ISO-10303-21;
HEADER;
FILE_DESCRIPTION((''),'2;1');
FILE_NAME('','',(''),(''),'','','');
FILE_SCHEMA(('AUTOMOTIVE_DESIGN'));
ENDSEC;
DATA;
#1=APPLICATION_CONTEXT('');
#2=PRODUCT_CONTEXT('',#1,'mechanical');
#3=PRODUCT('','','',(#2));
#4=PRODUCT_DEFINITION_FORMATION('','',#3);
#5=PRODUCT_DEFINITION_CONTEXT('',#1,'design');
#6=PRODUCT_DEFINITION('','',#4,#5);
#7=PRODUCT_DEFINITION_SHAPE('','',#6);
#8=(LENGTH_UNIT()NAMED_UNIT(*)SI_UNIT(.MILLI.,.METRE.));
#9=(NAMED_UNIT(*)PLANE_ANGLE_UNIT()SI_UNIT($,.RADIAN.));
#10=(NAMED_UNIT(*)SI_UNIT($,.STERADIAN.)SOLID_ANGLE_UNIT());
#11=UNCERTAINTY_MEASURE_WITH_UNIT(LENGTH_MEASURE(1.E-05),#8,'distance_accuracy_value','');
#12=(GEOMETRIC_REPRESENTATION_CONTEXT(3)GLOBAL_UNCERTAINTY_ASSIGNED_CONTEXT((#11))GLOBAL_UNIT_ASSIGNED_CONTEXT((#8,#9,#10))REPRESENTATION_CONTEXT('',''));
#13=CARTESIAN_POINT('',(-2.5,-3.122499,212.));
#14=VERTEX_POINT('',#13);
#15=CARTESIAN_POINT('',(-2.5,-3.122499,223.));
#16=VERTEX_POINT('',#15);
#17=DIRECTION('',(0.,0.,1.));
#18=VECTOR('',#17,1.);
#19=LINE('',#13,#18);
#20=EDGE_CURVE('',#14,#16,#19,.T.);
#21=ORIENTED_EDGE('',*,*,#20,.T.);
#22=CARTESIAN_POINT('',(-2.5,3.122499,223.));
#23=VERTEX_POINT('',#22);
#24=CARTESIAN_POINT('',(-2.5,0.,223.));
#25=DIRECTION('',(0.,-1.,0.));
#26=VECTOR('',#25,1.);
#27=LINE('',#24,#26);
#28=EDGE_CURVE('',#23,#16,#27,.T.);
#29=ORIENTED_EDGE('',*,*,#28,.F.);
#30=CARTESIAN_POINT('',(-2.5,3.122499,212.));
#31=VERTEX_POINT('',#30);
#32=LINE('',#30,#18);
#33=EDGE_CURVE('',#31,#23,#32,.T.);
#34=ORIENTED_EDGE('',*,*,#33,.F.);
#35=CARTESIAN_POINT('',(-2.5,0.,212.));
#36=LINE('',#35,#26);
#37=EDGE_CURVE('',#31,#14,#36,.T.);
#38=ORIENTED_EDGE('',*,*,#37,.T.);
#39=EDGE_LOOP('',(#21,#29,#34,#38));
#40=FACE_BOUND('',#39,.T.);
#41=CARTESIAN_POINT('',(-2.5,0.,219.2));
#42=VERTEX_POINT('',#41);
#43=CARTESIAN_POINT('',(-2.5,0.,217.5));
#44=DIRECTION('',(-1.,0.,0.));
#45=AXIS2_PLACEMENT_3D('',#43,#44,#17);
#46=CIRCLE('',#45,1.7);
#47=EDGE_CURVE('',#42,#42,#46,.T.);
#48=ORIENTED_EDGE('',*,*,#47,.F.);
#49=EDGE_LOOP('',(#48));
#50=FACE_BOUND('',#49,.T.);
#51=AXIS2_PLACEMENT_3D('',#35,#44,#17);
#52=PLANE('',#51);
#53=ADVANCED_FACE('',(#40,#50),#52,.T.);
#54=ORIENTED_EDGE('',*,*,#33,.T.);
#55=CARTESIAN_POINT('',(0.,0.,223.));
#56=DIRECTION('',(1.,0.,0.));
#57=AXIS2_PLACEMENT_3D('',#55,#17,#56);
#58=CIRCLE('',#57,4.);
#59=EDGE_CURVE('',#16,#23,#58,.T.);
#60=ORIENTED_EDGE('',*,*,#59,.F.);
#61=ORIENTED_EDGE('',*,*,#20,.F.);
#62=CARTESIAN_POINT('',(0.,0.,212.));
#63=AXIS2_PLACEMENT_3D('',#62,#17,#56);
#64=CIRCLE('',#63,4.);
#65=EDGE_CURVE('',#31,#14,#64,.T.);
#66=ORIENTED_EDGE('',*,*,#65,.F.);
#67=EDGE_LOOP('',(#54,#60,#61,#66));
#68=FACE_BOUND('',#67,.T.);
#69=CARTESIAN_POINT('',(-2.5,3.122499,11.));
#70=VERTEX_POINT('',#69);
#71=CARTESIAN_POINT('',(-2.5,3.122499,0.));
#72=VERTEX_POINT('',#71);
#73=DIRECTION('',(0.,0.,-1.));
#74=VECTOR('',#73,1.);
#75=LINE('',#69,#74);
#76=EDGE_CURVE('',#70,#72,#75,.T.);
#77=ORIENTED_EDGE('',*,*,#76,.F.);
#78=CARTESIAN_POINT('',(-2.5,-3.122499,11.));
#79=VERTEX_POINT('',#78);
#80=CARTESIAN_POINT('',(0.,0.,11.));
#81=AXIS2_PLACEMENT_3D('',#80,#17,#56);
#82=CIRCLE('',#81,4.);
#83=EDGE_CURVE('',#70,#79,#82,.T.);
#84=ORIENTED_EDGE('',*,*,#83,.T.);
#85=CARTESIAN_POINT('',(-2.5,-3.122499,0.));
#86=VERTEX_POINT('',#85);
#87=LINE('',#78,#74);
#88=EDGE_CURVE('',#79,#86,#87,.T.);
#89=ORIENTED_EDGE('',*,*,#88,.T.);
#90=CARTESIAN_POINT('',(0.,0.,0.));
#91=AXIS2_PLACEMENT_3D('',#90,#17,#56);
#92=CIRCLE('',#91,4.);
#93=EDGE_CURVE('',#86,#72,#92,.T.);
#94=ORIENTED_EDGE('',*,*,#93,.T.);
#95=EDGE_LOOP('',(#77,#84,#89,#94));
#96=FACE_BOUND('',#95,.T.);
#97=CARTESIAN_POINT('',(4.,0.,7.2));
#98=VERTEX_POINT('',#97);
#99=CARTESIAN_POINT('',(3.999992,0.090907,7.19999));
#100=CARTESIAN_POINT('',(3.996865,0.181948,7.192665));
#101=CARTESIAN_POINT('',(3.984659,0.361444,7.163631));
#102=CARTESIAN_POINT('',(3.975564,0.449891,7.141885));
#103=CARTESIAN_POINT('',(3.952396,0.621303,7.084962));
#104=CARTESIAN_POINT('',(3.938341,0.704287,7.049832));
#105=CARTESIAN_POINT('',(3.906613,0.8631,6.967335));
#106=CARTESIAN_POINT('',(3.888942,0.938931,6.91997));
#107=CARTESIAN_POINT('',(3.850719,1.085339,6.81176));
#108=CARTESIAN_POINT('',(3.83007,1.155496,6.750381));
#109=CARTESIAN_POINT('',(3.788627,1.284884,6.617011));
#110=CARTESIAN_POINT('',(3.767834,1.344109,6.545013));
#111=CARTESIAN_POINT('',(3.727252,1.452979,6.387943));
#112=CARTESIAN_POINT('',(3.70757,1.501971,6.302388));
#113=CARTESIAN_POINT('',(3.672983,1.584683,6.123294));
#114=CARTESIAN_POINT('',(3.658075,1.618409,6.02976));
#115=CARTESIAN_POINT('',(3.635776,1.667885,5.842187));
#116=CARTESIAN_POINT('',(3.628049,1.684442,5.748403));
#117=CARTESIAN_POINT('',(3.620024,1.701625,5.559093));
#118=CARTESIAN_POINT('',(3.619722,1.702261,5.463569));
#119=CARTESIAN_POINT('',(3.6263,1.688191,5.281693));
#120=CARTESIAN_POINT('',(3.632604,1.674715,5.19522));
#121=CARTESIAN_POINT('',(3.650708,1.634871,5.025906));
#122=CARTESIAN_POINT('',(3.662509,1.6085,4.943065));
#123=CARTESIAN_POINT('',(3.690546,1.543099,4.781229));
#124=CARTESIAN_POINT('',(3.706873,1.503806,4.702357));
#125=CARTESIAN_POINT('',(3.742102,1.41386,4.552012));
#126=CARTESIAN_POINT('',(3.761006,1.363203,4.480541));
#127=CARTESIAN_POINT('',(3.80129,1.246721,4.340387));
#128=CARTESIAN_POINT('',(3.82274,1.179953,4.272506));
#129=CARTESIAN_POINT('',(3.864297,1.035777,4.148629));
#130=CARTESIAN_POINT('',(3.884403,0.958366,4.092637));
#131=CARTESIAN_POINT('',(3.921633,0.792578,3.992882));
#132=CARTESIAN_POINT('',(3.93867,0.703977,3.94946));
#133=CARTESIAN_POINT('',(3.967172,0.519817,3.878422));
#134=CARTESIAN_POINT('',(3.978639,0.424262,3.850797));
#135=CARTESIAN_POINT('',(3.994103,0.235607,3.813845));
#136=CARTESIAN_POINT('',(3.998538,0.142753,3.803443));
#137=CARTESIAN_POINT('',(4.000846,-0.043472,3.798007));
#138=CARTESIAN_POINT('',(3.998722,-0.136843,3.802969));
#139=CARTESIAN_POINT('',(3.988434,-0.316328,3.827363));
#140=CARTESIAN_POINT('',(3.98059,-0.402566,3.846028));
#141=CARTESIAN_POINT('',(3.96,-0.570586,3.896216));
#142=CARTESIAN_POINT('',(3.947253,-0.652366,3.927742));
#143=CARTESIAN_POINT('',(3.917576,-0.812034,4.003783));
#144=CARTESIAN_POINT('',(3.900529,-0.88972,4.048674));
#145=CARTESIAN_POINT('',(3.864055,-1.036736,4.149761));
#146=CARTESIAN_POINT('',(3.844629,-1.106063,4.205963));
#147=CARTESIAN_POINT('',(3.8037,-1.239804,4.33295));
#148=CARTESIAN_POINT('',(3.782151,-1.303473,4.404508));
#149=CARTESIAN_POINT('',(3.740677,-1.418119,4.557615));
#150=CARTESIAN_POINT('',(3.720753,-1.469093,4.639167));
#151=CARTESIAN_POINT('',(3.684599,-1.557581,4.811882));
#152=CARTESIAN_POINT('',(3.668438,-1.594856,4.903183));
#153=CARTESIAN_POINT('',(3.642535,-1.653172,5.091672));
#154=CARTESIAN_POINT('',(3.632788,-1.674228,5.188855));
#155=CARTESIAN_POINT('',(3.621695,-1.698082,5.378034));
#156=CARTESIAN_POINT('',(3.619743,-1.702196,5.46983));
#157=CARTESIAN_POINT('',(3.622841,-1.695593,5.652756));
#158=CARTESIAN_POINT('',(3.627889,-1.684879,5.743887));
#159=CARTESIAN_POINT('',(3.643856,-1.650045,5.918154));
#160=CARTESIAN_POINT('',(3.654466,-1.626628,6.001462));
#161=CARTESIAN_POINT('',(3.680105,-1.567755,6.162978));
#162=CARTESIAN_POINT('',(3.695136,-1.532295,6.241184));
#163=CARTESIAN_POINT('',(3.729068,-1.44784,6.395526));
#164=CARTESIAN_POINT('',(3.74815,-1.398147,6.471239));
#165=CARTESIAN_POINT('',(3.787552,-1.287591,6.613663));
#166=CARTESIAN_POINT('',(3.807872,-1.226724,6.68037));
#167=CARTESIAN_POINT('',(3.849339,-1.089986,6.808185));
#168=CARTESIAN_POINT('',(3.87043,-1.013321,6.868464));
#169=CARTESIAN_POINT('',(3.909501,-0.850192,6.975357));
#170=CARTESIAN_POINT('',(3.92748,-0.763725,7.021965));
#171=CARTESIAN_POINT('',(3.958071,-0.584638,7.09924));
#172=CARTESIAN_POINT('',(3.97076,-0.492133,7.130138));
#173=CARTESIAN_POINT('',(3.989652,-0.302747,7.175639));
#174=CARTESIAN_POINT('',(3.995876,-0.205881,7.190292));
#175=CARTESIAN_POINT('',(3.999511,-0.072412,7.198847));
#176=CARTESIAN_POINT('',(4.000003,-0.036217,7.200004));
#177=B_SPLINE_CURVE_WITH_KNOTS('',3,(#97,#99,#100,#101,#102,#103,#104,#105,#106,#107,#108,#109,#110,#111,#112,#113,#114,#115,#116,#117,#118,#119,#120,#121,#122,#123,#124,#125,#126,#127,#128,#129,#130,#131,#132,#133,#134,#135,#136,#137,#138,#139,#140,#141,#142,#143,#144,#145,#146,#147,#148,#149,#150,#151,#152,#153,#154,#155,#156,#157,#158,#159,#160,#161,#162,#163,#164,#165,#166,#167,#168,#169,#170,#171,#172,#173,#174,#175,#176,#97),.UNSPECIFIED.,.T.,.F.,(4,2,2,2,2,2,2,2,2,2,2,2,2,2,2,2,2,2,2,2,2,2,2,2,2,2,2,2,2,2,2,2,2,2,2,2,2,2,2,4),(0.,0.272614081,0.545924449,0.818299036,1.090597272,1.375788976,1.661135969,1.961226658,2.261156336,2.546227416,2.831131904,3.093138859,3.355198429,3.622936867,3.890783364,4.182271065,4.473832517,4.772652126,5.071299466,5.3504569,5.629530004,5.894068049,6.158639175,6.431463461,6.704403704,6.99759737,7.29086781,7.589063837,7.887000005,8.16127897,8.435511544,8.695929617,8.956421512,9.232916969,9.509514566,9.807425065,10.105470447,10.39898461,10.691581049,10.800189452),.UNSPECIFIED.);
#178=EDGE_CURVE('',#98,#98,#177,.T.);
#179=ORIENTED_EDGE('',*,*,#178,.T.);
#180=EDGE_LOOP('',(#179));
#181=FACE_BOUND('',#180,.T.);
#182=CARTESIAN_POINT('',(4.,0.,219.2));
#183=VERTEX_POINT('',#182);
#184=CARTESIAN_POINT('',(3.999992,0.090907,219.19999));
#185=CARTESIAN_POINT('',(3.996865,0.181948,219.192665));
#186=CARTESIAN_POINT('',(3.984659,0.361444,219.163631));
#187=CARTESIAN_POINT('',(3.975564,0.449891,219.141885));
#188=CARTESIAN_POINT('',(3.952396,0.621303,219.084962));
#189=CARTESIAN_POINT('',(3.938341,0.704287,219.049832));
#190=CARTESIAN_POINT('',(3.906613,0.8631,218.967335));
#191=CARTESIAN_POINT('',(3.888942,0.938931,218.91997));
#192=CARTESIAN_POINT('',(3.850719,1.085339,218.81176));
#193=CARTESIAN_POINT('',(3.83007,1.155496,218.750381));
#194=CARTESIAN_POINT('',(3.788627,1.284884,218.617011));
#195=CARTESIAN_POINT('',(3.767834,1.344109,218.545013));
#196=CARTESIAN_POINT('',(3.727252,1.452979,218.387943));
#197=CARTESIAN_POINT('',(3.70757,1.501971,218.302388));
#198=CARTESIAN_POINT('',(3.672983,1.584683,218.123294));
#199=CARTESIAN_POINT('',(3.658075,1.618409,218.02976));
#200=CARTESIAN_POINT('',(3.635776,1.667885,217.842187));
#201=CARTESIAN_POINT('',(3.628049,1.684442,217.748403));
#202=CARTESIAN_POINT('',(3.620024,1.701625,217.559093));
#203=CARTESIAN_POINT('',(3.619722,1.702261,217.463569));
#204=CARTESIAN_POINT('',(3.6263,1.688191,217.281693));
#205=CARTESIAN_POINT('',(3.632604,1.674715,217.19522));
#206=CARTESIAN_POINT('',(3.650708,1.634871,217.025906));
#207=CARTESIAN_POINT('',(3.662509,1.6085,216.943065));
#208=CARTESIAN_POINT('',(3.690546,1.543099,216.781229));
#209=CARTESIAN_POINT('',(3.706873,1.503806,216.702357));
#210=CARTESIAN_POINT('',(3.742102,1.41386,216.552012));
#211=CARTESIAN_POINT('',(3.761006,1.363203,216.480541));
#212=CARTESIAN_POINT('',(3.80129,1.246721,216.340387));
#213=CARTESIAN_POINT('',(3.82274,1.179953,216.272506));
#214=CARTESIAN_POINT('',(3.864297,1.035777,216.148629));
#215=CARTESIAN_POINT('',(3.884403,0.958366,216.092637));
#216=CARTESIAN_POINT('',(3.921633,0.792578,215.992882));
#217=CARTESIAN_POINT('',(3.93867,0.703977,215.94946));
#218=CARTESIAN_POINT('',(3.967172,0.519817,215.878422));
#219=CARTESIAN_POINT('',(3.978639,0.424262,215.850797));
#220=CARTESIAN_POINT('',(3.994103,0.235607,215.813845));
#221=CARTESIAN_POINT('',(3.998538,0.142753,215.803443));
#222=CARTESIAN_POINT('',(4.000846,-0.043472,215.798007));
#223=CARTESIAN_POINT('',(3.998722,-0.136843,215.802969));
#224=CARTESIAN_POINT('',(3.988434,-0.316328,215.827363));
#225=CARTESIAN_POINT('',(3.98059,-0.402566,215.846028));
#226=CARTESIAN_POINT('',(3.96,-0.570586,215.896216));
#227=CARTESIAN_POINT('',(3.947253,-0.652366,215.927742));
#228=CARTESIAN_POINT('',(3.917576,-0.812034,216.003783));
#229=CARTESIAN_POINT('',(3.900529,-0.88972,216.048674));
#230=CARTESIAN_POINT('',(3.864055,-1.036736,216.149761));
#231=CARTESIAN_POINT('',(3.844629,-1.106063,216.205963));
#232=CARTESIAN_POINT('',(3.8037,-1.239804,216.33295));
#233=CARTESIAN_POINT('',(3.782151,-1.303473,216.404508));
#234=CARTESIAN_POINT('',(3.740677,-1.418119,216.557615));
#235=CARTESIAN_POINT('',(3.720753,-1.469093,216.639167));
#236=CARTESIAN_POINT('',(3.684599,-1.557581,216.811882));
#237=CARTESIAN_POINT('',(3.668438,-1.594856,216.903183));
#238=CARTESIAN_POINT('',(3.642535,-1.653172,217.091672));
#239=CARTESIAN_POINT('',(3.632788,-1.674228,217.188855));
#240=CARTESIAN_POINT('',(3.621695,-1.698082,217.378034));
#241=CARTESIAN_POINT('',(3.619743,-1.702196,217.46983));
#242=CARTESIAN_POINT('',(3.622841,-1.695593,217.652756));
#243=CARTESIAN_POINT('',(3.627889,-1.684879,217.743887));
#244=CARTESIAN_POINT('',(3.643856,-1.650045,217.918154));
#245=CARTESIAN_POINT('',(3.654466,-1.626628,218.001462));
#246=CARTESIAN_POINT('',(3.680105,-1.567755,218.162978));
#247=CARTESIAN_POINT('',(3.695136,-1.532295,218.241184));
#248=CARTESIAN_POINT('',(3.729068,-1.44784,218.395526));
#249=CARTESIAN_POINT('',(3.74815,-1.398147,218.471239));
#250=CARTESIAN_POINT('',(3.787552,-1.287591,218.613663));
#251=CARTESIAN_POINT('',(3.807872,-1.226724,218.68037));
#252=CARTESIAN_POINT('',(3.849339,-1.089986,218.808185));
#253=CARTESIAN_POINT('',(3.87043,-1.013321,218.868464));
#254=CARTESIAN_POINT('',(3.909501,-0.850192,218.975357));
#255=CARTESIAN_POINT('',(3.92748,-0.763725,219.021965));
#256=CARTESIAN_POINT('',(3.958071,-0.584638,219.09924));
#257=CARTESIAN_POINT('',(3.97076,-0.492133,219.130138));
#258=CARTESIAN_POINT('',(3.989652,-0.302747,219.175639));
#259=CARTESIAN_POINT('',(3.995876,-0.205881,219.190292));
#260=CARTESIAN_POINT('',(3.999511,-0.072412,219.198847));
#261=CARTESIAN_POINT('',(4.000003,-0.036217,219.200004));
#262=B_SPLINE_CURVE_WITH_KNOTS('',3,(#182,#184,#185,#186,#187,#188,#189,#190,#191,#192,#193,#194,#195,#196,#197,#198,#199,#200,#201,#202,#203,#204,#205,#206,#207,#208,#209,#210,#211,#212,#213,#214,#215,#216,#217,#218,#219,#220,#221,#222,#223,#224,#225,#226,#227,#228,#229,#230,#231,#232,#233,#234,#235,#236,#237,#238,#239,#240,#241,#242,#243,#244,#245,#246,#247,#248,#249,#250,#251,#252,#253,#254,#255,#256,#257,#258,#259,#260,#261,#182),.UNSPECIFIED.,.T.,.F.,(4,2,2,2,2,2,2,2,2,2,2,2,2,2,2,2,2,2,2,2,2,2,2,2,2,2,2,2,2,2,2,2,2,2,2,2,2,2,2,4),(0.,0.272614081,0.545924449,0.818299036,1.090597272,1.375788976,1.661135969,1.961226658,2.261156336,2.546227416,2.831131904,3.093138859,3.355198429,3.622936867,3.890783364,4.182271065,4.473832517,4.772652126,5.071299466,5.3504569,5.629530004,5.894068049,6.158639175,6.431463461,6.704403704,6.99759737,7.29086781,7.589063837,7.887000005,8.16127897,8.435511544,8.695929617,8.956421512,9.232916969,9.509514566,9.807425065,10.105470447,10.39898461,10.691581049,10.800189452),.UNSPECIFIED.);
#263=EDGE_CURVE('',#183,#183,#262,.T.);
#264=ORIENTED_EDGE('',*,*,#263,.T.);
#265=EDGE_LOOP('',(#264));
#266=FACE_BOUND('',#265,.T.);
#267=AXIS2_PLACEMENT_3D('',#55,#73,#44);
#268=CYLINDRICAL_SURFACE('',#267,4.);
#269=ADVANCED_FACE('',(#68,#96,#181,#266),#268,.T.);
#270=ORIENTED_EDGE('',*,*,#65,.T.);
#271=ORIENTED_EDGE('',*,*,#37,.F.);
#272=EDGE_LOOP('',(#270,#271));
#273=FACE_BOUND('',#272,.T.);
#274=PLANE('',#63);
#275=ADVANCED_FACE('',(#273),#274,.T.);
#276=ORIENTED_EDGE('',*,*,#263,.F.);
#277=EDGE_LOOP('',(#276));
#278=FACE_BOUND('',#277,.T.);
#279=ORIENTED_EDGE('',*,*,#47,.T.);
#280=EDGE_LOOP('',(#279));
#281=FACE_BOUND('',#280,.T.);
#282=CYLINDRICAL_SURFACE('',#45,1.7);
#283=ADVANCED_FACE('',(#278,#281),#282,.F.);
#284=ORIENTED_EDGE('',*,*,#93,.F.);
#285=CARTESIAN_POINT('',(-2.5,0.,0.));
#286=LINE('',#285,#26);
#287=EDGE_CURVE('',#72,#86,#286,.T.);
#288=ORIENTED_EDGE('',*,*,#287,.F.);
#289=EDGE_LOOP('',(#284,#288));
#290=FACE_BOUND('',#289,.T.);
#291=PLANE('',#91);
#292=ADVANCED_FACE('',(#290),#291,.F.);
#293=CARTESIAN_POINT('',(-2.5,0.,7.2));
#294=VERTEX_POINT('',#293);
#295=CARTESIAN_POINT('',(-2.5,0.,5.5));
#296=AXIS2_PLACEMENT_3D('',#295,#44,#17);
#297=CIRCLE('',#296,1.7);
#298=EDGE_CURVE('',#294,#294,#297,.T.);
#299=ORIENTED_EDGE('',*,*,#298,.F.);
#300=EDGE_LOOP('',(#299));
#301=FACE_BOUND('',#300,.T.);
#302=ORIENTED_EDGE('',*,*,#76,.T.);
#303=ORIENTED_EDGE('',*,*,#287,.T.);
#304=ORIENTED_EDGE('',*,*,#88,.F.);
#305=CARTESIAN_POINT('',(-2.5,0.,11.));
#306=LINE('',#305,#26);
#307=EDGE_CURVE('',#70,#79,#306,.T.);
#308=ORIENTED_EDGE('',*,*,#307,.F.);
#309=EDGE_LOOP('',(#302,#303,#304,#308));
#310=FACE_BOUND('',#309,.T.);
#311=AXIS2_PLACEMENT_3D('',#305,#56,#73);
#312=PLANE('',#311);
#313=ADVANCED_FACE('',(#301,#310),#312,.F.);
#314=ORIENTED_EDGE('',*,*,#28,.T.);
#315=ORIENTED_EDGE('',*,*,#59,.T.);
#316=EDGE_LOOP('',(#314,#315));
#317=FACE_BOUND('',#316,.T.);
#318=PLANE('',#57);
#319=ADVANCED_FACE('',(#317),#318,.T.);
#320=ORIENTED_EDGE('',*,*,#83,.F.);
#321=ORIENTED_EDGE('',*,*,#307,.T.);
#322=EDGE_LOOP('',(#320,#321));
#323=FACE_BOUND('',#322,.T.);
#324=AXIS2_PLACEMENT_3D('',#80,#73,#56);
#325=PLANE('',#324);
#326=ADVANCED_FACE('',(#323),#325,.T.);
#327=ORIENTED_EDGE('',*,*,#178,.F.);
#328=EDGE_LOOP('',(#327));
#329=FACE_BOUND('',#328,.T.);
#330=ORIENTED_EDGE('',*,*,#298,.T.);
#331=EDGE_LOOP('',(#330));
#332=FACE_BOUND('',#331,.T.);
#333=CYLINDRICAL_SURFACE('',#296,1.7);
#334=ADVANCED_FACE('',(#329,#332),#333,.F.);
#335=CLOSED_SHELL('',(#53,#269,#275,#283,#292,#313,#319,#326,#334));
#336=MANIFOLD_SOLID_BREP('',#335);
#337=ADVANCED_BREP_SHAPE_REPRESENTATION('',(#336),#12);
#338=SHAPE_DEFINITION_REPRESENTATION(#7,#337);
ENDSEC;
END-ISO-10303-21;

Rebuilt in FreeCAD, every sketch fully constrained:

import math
import FreeCAD as App
import Part
import Sketcher
Q = App.Units.Quantity

doc = App.newDocument("Part")
body = doc.addObject("PartDesign::Body", "Body")

sketch1 = body.newObject("Sketcher::SketchObject", "Sketch")
sketch1.AttachmentSupport = (doc.getObject("XY_Plane"), [""])
sketch1.MapMode = "FlatFace"
sketch1.addGeometry(Part.Circle(App.Vector(0, 0, 0), App.Vector(0, 0, 1), 4), False)
sketch1.addConstraint(Sketcher.Constraint("Coincident", 0, 3, -1, 1))
sketch1.addConstraint(Sketcher.Constraint("Diameter", 0, Q("8 mm")))
pad1 = body.newObject("PartDesign::Pad", "Pad")
pad1.Profile = sketch1
pad1.Length = 223

sketch2 = body.newObject("Sketcher::SketchObject", "Sketch001")
sketch2.AttachmentSupport = (doc.getObject("XY_Plane"), [""])
sketch2.MapMode = "FlatFace"
sketch2.AttachmentOffset = App.Placement(App.Vector(0, 0, 223), App.Rotation())
sketch2.addGeometry(Part.LineSegment(App.Vector(-2.5, -3.1, 0), App.Vector(-2.5, 3.1, 0)), False)
sketch2.addGeometry(Part.ArcOfCircle(Part.Circle(App.Vector(0, 0, 0), App.Vector(0, 0, 1), 4), math.radians(129), math.radians(231)), False)
sketch2.addConstraint(Sketcher.Constraint("Coincident", 0, 1, 1, 2))
sketch2.addConstraint(Sketcher.Constraint("Coincident", 1, 1, 0, 2))
sketch2.addConstraint(Sketcher.Constraint("Vertical", 0))
sketch2.addConstraint(Sketcher.Constraint("Coincident", 1, 3, -1, 1))
sketch2.addConstraint(Sketcher.Constraint("Radius", 1, Q("4 mm")))
sketch2.addConstraint(Sketcher.Constraint("DistanceX", 0, 1, -1, 1, Q("2.5 mm")))
pocket1 = body.newObject("PartDesign::Pocket", "Pocket")
pocket1.Profile = sketch2
pocket1.Length = 11
doc.recompute()

datumplane = body.newObject("PartDesign::Plane", "DatumPlane")
datumplane.AttachmentSupport = (doc.getObject("XY_Plane"), [""])
datumplane.MapMode = "FlatFace"
datumplane.AttachmentOffset = App.Placement(App.Vector(0, 0, 111.5), App.Rotation())
mirrored = body.newObject("PartDesign::Mirrored", "Mirrored")
mirrored.Originals = [pocket1]
mirrored.MirrorPlane = (datumplane, [""])
body.Tip = mirrored

sketch3 = body.newObject("Sketcher::SketchObject", "Sketch002")
sketch3.AttachmentSupport = (doc.getObject("YZ_Plane"), [""])
sketch3.MapMode = "FlatFace"
sketch3.AttachmentOffset = App.Placement(App.Vector(0, 0, -2.5), App.Rotation())
sketch3.addGeometry(Part.Circle(App.Vector(0, 217.5, 0), App.Vector(0, 0, 1), 1.7), False)
sketch3.addConstraint(Sketcher.Constraint("PointOnObject", 0, 3, -2))
sketch3.addConstraint(Sketcher.Constraint("Diameter", 0, Q("3.4 mm")))
sketch3.addConstraint(Sketcher.Constraint("DistanceY", -1, 1, 0, 3, Q("217.5 mm")))
doc.recompute()
hole = body.newObject("PartDesign::Hole", "Hole")
hole.Profile = sketch3
hole.ThreadType = "None"
hole.Diameter = 3.4
hole.DepthType = "ThroughAll"
hole.Reversed = True
doc.recompute()

datumplane2 = body.newObject("PartDesign::Plane", "DatumPlane001")
datumplane2.AttachmentSupport = (doc.getObject("XY_Plane"), [""])
datumplane2.MapMode = "FlatFace"
datumplane2.AttachmentOffset = App.Placement(App.Vector(0, 0, 111.5), App.Rotation())
mirrored2 = body.newObject("PartDesign::Mirrored", "Mirrored001")
mirrored2.Originals = [hole]
mirrored2.MirrorPlane = (datumplane2, [""])
body.Tip = mirrored2

doc.recompute()
